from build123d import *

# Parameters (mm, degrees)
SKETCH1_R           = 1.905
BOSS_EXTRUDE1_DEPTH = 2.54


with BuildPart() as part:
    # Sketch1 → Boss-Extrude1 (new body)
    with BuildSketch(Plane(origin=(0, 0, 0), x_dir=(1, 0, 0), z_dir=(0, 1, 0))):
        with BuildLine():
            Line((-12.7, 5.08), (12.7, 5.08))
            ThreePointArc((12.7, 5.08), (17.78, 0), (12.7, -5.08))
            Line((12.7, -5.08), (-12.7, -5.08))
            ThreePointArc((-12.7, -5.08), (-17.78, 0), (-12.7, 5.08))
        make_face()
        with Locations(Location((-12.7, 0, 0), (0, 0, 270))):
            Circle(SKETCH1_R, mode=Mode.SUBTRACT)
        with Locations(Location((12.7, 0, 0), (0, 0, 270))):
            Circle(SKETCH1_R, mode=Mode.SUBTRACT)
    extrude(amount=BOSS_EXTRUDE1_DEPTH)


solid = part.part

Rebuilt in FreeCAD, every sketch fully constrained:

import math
import FreeCAD as App
import Part
import Sketcher

V = App.Vector
Q = App.Units.Quantity

doc = App.newDocument("Part")
params = doc.addObject("Spreadsheet::Sheet", "Params")
for row, (alias, value) in enumerate([
    ("sketch1_radius", "0.2 in"),
    ("sketch1_diameter", "0.15 in"),
    ("sketch1_width", "1 in"),
    ("pad1_length", "0.1 in"),
], start=1):
    params.set(f"A{row}", alias)
    params.set(f"B{row}", "=" + value)
    params.setAlias(f"B{row}", alias)

body = doc.addObject("PartDesign::Body", "Body")

sketch1 = body.newObject("Sketcher::SketchObject", "Sketch")
sketch1.AttachmentSupport = (doc.getObject("XZ_Plane"), [""])
sketch1.MapMode = "FlatFace"
sketch1.addGeometry(Part.LineSegment(V(12.7, -5.08, 0), V(-12.7, -5.08, 0)), False)
sketch1.addGeometry(Part.ArcOfCircle(Part.Circle(V(-12.7, 0, 0), V(0, 0, 1), 5.08), math.radians(90), math.radians(270)), False)
sketch1.addGeometry(Part.LineSegment(V(-12.7, 5.08, 0), V(12.7, 5.08, 0)), False)
sketch1.addGeometry(Part.ArcOfCircle(Part.Circle(V(12.7, 0, 0), V(0, 0, 1), 5.08), math.radians(-90), math.radians(90)), False)
sketch1.addGeometry(Part.Circle(V(12.7, 0, 0), V(0, 0, 1), 1.905), False)
sketch1.addGeometry(Part.Circle(V(-12.7, 0, 0), V(0, 0, 1), 1.905), False)
sketch1.addConstraint(Sketcher.Constraint("Tangent", 0, 2, 1, 2))
sketch1.addConstraint(Sketcher.Constraint("Tangent", 1, 1, 2, 1))
sketch1.addConstraint(Sketcher.Constraint("Tangent", 2, 2, 3, 2))
sketch1.addConstraint(Sketcher.Constraint("Tangent", 3, 1, 0, 1))
sketch1.addConstraint(Sketcher.Constraint("Horizontal", 0))
sketch1.addConstraint(Sketcher.Constraint("Horizontal", 2))
sketch1.addConstraint(Sketcher.Constraint("Coincident", 4, 3, 3, 3))
sketch1.addConstraint(Sketcher.Constraint("Coincident", 5, 3, 1, 3))
sketch1.addConstraint(Sketcher.Constraint("Equal", 4, 5))
sketch1.addConstraint(Sketcher.Constraint("Symmetric", 1, 3, 3, 3, -1, 1))
sketch1.addConstraint(Sketcher.Constraint("Radius", 1, Q("0.2 in")))
sketch1.addConstraint(Sketcher.Constraint("Diameter", 4, Q("0.15 in")))
sketch1.addConstraint(Sketcher.Constraint("DistanceX", 0, 2, 0, 1, Q("1 in")))
sketch1.setExpression("Constraints[10]", "Params.sketch1_radius")
sketch1.setExpression("Constraints[11]", "Params.sketch1_diameter")
sketch1.setExpression("Constraints[12]", "Params.sketch1_width")
pad1 = body.newObject("PartDesign::Pad", "Pad")
pad1.Profile = sketch1
pad1.setExpression("Length", "Params.pad1_length")
pad1.Reversed = True

doc.recompute()
